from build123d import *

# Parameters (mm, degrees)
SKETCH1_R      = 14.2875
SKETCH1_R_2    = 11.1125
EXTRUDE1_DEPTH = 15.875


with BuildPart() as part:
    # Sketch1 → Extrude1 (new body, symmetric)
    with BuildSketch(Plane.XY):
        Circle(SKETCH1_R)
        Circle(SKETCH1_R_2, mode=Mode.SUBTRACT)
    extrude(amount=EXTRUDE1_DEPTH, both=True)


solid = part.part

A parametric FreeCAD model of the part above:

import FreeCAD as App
import Part
import Sketcher

V = App.Vector
Q = App.Units.Quantity

doc = App.newDocument("Part")
body = doc.addObject("PartDesign::Body", "Body")

# Sketch on XY plane
sketch1 = doc.addObject("Sketcher::SketchObject", "Sketch")
body.addObject(sketch1)
sketch1.AttachmentSupport = (doc.XY_Plane, [""])
sketch1.MapMode = "FlatFace"
sketch1.addGeometry([
    Part.Circle(V(0, 0, 0), V(0, 0, 1), 14.2875),
    Part.Circle(V(0, 0, 0), V(0, 0, 1), 11.1125),
], False)
sketch1.addConstraint([
    Sketcher.Constraint("Coincident", 0, 3, -1, 1),
    Sketcher.Constraint("Coincident", 1, 3, -1, 1),
    Sketcher.Constraint("Diameter", 0, Q("1.125 in")),
    Sketcher.Constraint("Diameter", 1, Q("0.875 in")),
])
pad1 = doc.addObject("PartDesign::Pad", "Pad")
body.addObject(pad1)
pad1.Profile = sketch1
pad1.Length = Q("1.25 in")
pad1.Midplane = True

doc.recompute()
